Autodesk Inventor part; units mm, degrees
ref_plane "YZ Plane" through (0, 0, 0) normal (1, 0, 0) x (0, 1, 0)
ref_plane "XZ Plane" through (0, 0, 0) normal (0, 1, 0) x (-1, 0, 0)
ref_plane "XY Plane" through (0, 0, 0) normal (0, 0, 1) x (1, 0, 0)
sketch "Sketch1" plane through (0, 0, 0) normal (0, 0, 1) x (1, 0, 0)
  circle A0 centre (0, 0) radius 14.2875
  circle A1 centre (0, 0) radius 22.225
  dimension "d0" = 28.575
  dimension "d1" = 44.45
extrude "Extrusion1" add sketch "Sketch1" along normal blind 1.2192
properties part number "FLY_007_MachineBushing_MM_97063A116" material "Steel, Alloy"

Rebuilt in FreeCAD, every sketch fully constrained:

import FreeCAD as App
import Part
import Sketcher
Q = App.Units.Quantity

doc = App.newDocument("Part")
params = doc.addObject("Spreadsheet::Sheet", "Params")
for row, (alias, value) in enumerate([
    ("sketch1_diameter", "1.75 in"),
    ("sketch1_diameter2", "1.125 in"),
    ("pad1_length", "0.048 in"),
], start=1):
    params.set(f"A{row}", alias)
    params.set(f"B{row}", "=" + value)
    params.setAlias(f"B{row}", alias)

body = doc.addObject("PartDesign::Body", "Body")

sketch1 = doc.addObject("Sketcher::SketchObject", "Sketch")
body.addObject(sketch1)
sketch1.AttachmentSupport = (doc.XY_Plane, [""])
sketch1.MapMode = "FlatFace"
sketch1.addGeometry([
    Part.Circle(App.Vector(0, 0, 0), App.Vector(0, 0, 1), 22),
    Part.Circle(App.Vector(0, 0, 0), App.Vector(0, 0, 1), 14),
], False)
sketch1.addConstraint([
    Sketcher.Constraint("Coincident", 0, 3, -1, 1),
    Sketcher.Constraint("Coincident", 1, 3, -1, 1),
    Sketcher.Constraint("Diameter", 0, Q("1.75 in")),
    Sketcher.Constraint("Diameter", 1, Q("1.125 in")),
])
sketch1.setExpression("Constraints[2]", "Params.sketch1_diameter")
sketch1.setExpression("Constraints[3]", "Params.sketch1_diameter2")
pad1 = doc.addObject("PartDesign::Pad", "Pad")
body.addObject(pad1)
pad1.Profile = sketch1
pad1.setExpression("Length", "Params.pad1_length")

doc.recompute()
